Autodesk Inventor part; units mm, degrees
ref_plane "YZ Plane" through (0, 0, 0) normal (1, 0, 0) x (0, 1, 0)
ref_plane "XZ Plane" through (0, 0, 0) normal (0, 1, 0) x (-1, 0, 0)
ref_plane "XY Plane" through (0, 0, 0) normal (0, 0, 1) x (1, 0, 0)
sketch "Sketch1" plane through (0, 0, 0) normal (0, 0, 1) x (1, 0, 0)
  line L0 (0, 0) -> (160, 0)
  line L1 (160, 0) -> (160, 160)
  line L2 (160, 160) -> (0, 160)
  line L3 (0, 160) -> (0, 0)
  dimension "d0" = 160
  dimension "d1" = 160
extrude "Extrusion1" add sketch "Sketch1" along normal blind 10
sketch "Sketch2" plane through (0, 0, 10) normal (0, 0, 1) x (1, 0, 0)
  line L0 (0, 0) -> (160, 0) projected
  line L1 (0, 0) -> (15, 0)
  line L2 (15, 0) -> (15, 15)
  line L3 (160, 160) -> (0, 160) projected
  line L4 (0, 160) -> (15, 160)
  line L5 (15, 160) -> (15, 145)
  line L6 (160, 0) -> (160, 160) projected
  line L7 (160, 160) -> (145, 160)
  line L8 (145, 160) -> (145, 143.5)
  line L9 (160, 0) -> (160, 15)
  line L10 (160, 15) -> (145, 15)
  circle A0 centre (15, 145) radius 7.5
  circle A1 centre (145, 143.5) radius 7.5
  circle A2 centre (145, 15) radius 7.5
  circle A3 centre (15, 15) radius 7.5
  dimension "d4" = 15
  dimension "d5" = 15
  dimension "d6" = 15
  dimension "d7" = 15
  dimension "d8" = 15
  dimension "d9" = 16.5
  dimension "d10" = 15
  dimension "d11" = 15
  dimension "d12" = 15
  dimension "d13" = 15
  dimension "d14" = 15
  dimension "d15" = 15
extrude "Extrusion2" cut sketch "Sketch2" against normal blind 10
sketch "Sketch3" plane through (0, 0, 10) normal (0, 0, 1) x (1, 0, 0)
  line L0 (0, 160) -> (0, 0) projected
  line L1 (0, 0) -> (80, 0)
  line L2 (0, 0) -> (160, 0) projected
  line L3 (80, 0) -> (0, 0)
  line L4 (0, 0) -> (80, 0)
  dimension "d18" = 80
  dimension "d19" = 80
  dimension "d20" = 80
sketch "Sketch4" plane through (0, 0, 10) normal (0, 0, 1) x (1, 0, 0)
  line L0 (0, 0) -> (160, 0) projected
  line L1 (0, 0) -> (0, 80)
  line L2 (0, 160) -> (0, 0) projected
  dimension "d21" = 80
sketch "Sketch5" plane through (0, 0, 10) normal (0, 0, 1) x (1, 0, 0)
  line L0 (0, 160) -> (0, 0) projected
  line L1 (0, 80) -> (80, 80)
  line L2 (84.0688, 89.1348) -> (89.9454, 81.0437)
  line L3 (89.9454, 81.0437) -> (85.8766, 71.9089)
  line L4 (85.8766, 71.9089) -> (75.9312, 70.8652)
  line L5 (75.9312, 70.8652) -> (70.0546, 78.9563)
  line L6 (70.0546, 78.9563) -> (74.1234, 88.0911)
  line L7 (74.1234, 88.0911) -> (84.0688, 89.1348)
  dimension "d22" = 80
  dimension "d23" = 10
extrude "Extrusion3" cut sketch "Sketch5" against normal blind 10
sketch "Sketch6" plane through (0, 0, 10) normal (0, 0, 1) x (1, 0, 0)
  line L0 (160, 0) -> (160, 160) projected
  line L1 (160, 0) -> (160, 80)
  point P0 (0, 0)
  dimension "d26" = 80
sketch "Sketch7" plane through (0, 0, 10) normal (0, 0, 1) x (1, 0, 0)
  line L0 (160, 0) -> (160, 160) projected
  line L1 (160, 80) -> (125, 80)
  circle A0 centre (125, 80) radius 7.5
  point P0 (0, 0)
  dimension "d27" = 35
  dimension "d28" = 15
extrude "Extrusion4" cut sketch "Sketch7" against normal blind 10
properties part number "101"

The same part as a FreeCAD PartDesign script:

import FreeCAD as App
import Part
import Sketcher
from FreeCAD import Vector
Q = App.Units.Quantity


def add_polygon(sketch, points):
    """Adds a closed chain of lines whose ends are joined by coincident constraints."""
    first, n = sketch.GeometryCount, len(points)
    for a, b in zip(points, points[1:] + points[:1]):
        sketch.addGeometry(Part.LineSegment(App.Vector(*a, 0), App.Vector(*b, 0)), False)
    for i in range(n):
        sketch.addConstraint(Sketcher.Constraint("Coincident", first + i, 2, first + (i + 1) % n, 1))

doc = App.newDocument("Part")
params = doc.addObject("Spreadsheet::Sheet", "Params")
for row, (alias, value) in enumerate([
    ("sketch1_width", "160 mm"),
    ("pad1_length", "10 mm"),
    ("sketch2_diameter", "15 mm"),
    ("pocket1_length", "10 mm"),
    ("sketch3_length", "10 mm"),
    ("pocket2_length", "10 mm"),
    ("sketch4_diameter", "15 mm"),
    ("pocket3_length", "10 mm"),
], start=1):
    params.set(f"A{row}", alias)
    params.set(f"B{row}", "=" + value)
    params.setAlias(f"B{row}", alias)

body = doc.addObject("PartDesign::Body", "Body")

# Sketch on XY plane
sketch1 = body.newObject("Sketcher::SketchObject", "Sketch")
sketch1.AttachmentSupport = (doc.getObject("XY_Plane"), [""])
sketch1.MapMode = "FlatFace"
add_polygon(sketch1, [(0, 160), (0, 0), (160, 0), (160, 160)])  # lines 0-3
sketch1.addConstraint([
    Sketcher.Constraint("Vertical", 0),
    Sketcher.Constraint("Horizontal", 1),
    Sketcher.Constraint("Vertical", 2),
    Sketcher.Constraint("Horizontal", 3),
    Sketcher.Constraint("Coincident", 0, 2, -1, 1),
    Sketcher.Constraint("Equal", 3, 0),
    Sketcher.Constraint("DistanceX", 1, 1, 1, 2, 160.0),
])
sketch1.setExpression("Constraints[10]", "Params.sketch1_width")
pad1 = body.newObject("PartDesign::Pad", "Pad")
pad1.Profile = sketch1
pad1.setExpression("Length", "Params.pad1_length")

# Sketch on XY plane
sketch2 = body.newObject("Sketcher::SketchObject", "Sketch001")
sketch2.AttachmentSupport = (doc.getObject("XY_Plane"), [""])
sketch2.MapMode = "FlatFace"
sketch2.AttachmentOffset = App.Placement(Vector(0, 0, 10), App.Rotation())
sketch2.addGeometry([
    Part.Circle(Vector(145, 15, 0), Vector(0, 0, 1), 8),
    Part.Circle(Vector(145, 144, 0), Vector(0, 0, 1), 8),
    Part.Circle(Vector(15, 145, 0), Vector(0, 0, 1), 8),
    Part.Circle(Vector(15, 15, 0), Vector(0, 0, 1), 8),
], False)
sketch2.addConstraint([
    Sketcher.Constraint("Equal", 0, 1),
    Sketcher.Constraint("Equal", 1, 2),
    Sketcher.Constraint("Equal", 2, 3),
    Sketcher.Constraint("Horizontal", 0, 3, 3, 3),
    Sketcher.Constraint("Vertical", 0, 3, 1, 3),
    Sketcher.Constraint("Vertical", 2, 3, 3, 3),
    Sketcher.Constraint("Diameter", 0, 15.0),
    Sketcher.Constraint("DistanceY", -1, 1, 0, 3, 15.0),
    Sketcher.Constraint("DistanceX", -1, 1, 2, 3, 15.0),
    Sketcher.Constraint("DistanceX", -1, 1, 0, 3, 145.0),
    Sketcher.Constraint("DistanceY", -1, 1, 2, 3, 145.0),
    Sketcher.Constraint("DistanceY", -1, 1, 1, 3, 143.5),
])
sketch2.setExpression("Constraints[6]", "Params.sketch2_diameter")
pocket1 = body.newObject("PartDesign::Pocket", "Pocket")
pocket1.Profile = sketch2
pocket1.setExpression("Length", "Params.pocket1_length")

# Sketch on XY plane
sketch3 = body.newObject("Sketcher::SketchObject", "Sketch002")
sketch3.AttachmentSupport = (doc.getObject("XY_Plane"), [""])
sketch3.MapMode = "FlatFace"
sketch3.AttachmentOffset = App.Placement(Vector(0, 0, 10), App.Rotation())
add_polygon(sketch3, [(90, 81), (84, 89), (74, 88), (70, 79), (76, 71), (86, 72)])  # lines 0-5
sketch3.addConstraint([
    Sketcher.Constraint("Parallel", 0, 3),
    Sketcher.Constraint("Parallel", 1, 4),
    Sketcher.Constraint("Parallel", 2, 5),
    Sketcher.Constraint("Equal", 0, 1),
    Sketcher.Constraint("Equal", 1, 2),
    Sketcher.Constraint("Equal", 2, 3),
    Sketcher.Constraint("Distance", 0, 10.0),
    Sketcher.Constraint("Angle", 0, Q("125.991 deg")),
    Sketcher.Constraint("Angle", 1, Q("-174.0091 deg")),
    Sketcher.Constraint("Angle", 2, Q("-114.009 deg")),
    Sketcher.Constraint("DistanceY", -1, 1, 1, 2, 88.091),
    Sketcher.Constraint("DistanceX", -1, 1, 0, 2, 84.0688),
])
sketch3.setExpression("Constraints[12]", "Params.sketch3_length")
pocket2 = body.newObject("PartDesign::Pocket", "Pocket001")
pocket2.Profile = sketch3
pocket2.setExpression("Length", "Params.pocket2_length")

# Sketch on XY plane
sketch4 = body.newObject("Sketcher::SketchObject", "Sketch003")
sketch4.AttachmentSupport = (doc.getObject("XY_Plane"), [""])
sketch4.MapMode = "FlatFace"
sketch4.AttachmentOffset = App.Placement(Vector(0, 0, 10), App.Rotation())
sketch4.addGeometry(Part.Circle(Vector(125, 80, 0), Vector(0, 0, 1), 8), False)
sketch4.addConstraint([
    Sketcher.Constraint("Diameter", 0, 15.0),
    Sketcher.Constraint("DistanceX", -1, 1, 0, 3, 125.0),
    Sketcher.Constraint("DistanceY", -1, 1, 0, 3, 80.0),
])
sketch4.setExpression("Constraints[0]", "Params.sketch4_diameter")
pocket3 = body.newObject("PartDesign::Pocket", "Pocket002")
pocket3.Profile = sketch4
pocket3.setExpression("Length", "Params.pocket3_length")

doc.recompute()
